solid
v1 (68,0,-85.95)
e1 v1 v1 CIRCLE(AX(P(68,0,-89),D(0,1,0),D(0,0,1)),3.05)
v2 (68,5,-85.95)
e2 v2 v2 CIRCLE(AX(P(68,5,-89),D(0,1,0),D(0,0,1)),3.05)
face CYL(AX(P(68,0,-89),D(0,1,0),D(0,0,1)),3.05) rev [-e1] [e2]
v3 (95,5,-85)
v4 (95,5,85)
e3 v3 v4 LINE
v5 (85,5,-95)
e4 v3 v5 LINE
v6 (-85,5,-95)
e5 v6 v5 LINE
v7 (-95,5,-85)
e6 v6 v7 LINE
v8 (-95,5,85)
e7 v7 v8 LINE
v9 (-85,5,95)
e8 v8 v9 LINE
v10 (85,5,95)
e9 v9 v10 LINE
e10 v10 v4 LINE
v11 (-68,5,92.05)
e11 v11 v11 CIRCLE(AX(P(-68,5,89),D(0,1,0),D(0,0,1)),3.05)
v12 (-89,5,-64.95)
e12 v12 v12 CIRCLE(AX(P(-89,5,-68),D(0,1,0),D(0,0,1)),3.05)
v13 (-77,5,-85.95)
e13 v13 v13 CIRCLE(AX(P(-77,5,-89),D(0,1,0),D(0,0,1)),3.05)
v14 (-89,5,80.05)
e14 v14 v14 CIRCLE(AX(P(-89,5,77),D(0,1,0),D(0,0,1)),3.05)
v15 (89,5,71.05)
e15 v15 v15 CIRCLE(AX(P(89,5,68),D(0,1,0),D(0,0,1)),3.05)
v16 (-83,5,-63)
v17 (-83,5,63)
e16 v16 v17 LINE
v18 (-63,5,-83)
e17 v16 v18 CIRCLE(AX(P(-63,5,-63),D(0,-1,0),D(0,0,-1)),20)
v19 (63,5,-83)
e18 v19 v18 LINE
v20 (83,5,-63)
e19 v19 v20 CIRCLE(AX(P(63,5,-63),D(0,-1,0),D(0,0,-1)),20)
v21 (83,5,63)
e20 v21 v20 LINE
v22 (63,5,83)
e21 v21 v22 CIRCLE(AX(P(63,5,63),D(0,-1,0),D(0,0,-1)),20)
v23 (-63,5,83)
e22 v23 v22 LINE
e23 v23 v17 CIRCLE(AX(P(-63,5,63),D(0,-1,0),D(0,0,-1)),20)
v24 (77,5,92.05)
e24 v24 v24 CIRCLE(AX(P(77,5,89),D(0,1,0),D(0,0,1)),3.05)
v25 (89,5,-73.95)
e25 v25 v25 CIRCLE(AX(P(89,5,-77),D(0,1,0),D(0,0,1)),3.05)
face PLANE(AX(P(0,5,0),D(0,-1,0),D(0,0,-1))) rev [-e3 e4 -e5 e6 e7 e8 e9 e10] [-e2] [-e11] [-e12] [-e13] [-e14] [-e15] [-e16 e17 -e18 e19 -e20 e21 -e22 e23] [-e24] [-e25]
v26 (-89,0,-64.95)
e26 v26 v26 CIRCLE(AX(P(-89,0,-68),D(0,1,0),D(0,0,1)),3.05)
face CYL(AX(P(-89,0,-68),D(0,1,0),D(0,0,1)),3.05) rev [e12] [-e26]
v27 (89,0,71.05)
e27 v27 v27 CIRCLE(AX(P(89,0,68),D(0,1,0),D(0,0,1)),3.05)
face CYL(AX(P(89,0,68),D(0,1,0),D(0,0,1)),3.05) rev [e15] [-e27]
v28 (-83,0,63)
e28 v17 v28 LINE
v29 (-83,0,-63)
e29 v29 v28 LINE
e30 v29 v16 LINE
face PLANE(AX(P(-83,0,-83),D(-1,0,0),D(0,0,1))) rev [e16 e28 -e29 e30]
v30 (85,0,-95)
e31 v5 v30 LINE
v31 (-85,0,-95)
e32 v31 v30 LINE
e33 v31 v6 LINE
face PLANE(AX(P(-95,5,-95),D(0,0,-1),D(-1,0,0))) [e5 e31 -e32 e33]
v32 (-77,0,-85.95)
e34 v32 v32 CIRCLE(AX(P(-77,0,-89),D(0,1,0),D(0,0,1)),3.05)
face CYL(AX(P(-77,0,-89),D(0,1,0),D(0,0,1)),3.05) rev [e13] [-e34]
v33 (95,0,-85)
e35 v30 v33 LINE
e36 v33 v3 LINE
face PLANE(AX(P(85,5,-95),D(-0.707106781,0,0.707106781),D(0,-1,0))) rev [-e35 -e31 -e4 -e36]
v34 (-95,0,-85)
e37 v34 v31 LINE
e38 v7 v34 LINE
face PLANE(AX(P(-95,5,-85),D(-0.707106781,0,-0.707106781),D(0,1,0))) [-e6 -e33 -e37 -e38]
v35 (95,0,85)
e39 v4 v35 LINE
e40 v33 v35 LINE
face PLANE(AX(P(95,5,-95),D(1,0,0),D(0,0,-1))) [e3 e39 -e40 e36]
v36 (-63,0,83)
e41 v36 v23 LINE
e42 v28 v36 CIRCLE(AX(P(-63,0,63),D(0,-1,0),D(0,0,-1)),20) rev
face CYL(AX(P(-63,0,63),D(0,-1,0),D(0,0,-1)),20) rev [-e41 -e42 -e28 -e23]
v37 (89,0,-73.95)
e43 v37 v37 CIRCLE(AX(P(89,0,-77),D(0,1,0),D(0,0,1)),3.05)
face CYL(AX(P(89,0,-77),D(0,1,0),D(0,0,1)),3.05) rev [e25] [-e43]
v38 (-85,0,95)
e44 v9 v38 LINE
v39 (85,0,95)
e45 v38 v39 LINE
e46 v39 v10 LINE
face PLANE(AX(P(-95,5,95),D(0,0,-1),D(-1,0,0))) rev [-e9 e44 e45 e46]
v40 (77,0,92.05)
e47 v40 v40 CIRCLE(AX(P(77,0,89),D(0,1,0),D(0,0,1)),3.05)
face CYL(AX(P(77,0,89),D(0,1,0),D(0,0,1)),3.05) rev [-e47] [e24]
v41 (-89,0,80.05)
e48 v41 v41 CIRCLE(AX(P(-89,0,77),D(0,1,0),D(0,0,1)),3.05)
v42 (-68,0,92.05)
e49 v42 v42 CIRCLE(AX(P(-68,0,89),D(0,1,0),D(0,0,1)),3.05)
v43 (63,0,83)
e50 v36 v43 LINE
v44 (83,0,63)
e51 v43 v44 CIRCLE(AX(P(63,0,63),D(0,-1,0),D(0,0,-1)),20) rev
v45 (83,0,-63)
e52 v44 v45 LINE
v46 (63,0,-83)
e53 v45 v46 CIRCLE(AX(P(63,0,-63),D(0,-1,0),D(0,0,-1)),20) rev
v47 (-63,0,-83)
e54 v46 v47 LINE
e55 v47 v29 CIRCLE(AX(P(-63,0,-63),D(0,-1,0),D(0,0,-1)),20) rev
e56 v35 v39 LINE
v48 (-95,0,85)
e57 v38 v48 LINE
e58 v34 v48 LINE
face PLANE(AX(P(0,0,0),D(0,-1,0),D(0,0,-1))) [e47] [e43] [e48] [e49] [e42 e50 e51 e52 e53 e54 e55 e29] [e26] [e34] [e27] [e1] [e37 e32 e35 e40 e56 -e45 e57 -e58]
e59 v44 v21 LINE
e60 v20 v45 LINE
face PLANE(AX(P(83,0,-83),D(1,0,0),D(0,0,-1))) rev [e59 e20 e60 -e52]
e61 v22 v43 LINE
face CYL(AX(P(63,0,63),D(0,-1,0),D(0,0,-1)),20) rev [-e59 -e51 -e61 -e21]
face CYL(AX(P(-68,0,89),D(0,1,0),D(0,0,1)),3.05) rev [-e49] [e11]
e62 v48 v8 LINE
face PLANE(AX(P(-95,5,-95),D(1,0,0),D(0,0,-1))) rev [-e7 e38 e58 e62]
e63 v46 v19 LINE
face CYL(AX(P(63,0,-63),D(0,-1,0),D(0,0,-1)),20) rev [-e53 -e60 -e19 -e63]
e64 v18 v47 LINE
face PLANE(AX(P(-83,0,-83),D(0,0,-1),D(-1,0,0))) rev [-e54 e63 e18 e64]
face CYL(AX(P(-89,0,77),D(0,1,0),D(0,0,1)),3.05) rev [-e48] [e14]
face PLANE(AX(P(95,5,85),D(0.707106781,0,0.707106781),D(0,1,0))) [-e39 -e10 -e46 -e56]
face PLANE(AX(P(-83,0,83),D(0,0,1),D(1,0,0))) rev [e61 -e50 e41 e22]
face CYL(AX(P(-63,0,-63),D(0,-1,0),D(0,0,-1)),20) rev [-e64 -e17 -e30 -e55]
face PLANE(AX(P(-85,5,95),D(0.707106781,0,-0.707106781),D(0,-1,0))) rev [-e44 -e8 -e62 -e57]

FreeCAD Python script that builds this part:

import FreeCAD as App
import Part
import Sketcher


def edges_at(feature, points):
    """Names of the edges that pass closest to the given points."""
    edges = feature.Shape.Edges
    near = lambda p: min(range(len(edges)), key=lambda i: edges[i].distToShape(Part.Vertex(*p))[0])
    return sorted({f"Edge{near(p) + 1}" for p in points})

doc = App.newDocument("Part")
body = doc.addObject("PartDesign::Body", "Body")

# Sketch on XZ plane
sketch1 = doc.addObject("Sketcher::SketchObject", "Sketch")
body.addObject(sketch1)
sketch1.AttachmentSupport = (doc.XZ_Plane, [""])
sketch1.MapMode = "FlatFace"
sketch1.addGeometry([
    Part.LineSegment(App.Vector(-95, -95, 0), App.Vector(-95, 95, 0)),
    Part.LineSegment(App.Vector(-95, 95, 0), App.Vector(95, 95, 0)),
    Part.LineSegment(App.Vector(95, 95, 0), App.Vector(95, -95, 0)),
    Part.LineSegment(App.Vector(95, -95, 0), App.Vector(-95, -95, 0)),
], False)
sketch1.addConstraint([
    Sketcher.Constraint("Coincident", 0, 2, 1, 1),
    Sketcher.Constraint("Coincident", 1, 2, 2, 1),
    Sketcher.Constraint("Coincident", 2, 2, 3, 1),
    Sketcher.Constraint("Coincident", 3, 2, 0, 1),
    Sketcher.Constraint("Vertical", 0),
    Sketcher.Constraint("Horizontal", 1),
    Sketcher.Constraint("Vertical", 2),
    Sketcher.Constraint("Horizontal", 3),
    Sketcher.Constraint("Symmetric", 0, 2, 2, 2, -1, 1),
    Sketcher.Constraint("Equal", 3, 0),
    Sketcher.Constraint("DistanceX", 1, 1, 1, 2, 190.0),
])
pad1 = doc.addObject("PartDesign::Pad", "Pad")
body.addObject(pad1)
pad1.Profile = sketch1
pad1.Length = 5
pad1.Reversed = True

# Sketch on XZ plane
sketch2 = doc.addObject("Sketcher::SketchObject", "Sketch001")
body.addObject(sketch2)
sketch2.AttachmentSupport = (doc.XZ_Plane, [""])
sketch2.MapMode = "FlatFace"
sketch2.AttachmentOffset = App.Placement(App.Vector(0, 0, -5), App.Rotation())
sketch2.addGeometry([
    Part.LineSegment(App.Vector(-83, -83, 0), App.Vector(-83, 83, 0)),
    Part.LineSegment(App.Vector(-83, 83, 0), App.Vector(83, 83, 0)),
    Part.LineSegment(App.Vector(83, 83, 0), App.Vector(83, -83, 0)),
    Part.LineSegment(App.Vector(83, -83, 0), App.Vector(-83, -83, 0)),
], False)
sketch2.addConstraint([
    Sketcher.Constraint("Coincident", 0, 2, 1, 1),
    Sketcher.Constraint("Coincident", 1, 2, 2, 1),
    Sketcher.Constraint("Coincident", 2, 2, 3, 1),
    Sketcher.Constraint("Coincident", 3, 2, 0, 1),
    Sketcher.Constraint("Vertical", 0),
    Sketcher.Constraint("Horizontal", 1),
    Sketcher.Constraint("Vertical", 2),
    Sketcher.Constraint("Horizontal", 3),
    Sketcher.Constraint("Symmetric", 0, 2, 2, 2, -1, 1),
    Sketcher.Constraint("Equal", 3, 0),
    Sketcher.Constraint("DistanceX", 1, 1, 1, 2, 166.0),
])
pocket1 = doc.addObject("PartDesign::Pocket", "Pocket")
body.addObject(pocket1)
pocket1.Profile = sketch2
pocket1.Type = "ThroughAll"
pocket1.Reversed = True
doc.recompute()

fillet = doc.addObject("PartDesign::Fillet", "Fillet")
body.addObject(fillet)
fillet.Base = (pocket1, edges_at(pocket1, [
    (83, 2.5, -83),
    (83, 2.5, 83),
    (-83, 2.5, 83),
    (-83, 2.5, -83),
]))
fillet.Radius = 20

# Sketch on XZ plane
sketch3 = doc.addObject("Sketcher::SketchObject", "Sketch002")
body.addObject(sketch3)
sketch3.AttachmentSupport = (doc.XZ_Plane, [""])
sketch3.MapMode = "FlatFace"
sketch3.AttachmentOffset = App.Placement(App.Vector(0, 0, -5), App.Rotation())
sketch3.addGeometry([
    Part.Circle(App.Vector(-77, -89, 0), App.Vector(0, 0, 1), 3),  # 0
    Part.Circle(App.Vector(-89, -68, 0), App.Vector(0, 0, 1), 3),  # 1
    Part.Circle(App.Vector(89, -77, 0), App.Vector(0, 0, 1), 3),  # 2
    Part.Circle(App.Vector(68, -89, 0), App.Vector(0, 0, 1), 3),  # 3
    Part.Circle(App.Vector(77, 89, 0), App.Vector(0, 0, 1), 3),  # 4
    Part.Circle(App.Vector(89, 68, 0), App.Vector(0, 0, 1), 3),  # 5
    Part.Circle(App.Vector(-89, 77, 0), App.Vector(0, 0, 1), 3),  # 6
    Part.Circle(App.Vector(-68, 89, 0), App.Vector(0, 0, 1), 3),  # 7
], False)
sketch3.addConstraint([
    Sketcher.Constraint("Equal", 0, 1),
    Sketcher.Constraint("Equal", 1, 2),
    Sketcher.Constraint("Equal", 2, 3),
    Sketcher.Constraint("Equal", 3, 4),
    Sketcher.Constraint("Equal", 4, 5),
    Sketcher.Constraint("Equal", 5, 6),
    Sketcher.Constraint("Equal", 6, 7),
    Sketcher.Constraint("Symmetric", 0, 3, 4, 3, -1, 1),
    Sketcher.Constraint("Symmetric", 1, 3, 5, 3, -1, 1),
    Sketcher.Constraint("Symmetric", 2, 3, 6, 3, -1, 1),
    Sketcher.Constraint("Symmetric", 3, 3, 7, 3, -1, 1),
    Sketcher.Constraint("Horizontal", 0, 3, 3, 3),
    Sketcher.Constraint("Vertical", 2, 3, 5, 3),
    Sketcher.Constraint("Diameter", 0, 6.1),
    Sketcher.Constraint("DistanceX", 0, 3, -1, 1, 77.0),
    Sketcher.Constraint("DistanceY", 0, 3, -1, 1, 89.0),
    Sketcher.Constraint("DistanceX", 1, 3, -1, 1, 89.0),
    Sketcher.Constraint("DistanceY", 1, 3, -1, 1, 68.0),
    Sketcher.Constraint("DistanceY", 2, 3, -1, 1, 77.0),
    Sketcher.Constraint("DistanceX", -1, 1, 3, 3, 68.0),
])
pocket2 = doc.addObject("PartDesign::Pocket", "Pocket001")
body.addObject(pocket2)
pocket2.Profile = sketch3
pocket2.Type = "ThroughAll"
pocket2.Reversed = True
doc.recompute()

chamfer = doc.addObject("PartDesign::Chamfer", "Chamfer")
body.addObject(chamfer)
chamfer.Base = (pocket2, edges_at(pocket2, [
    (-95, 2.5, -95),
    (-95, 2.5, 95),
    (95, 2.5, 95),
    (95, 2.5, -95),
]))
chamfer.Size = 10

doc.recompute()
